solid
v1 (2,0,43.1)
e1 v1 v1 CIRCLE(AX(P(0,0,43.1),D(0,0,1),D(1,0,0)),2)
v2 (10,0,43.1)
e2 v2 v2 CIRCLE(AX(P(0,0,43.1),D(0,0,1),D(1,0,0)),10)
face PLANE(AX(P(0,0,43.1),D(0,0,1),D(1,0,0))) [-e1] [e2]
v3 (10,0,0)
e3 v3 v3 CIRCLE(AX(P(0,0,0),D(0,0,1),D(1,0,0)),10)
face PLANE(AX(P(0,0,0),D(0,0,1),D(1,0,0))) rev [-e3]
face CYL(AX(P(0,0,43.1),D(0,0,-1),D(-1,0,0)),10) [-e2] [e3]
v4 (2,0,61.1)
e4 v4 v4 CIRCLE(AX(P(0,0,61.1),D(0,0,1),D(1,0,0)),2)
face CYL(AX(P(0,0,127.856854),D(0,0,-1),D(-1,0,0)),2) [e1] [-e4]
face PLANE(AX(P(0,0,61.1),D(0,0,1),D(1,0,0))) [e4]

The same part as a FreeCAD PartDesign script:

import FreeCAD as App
import Part
import Sketcher
from FreeCAD import Vector

doc = App.newDocument("Part")
body = doc.addObject("PartDesign::Body", "Body")

# Sketch on XY plane
sketch1 = body.newObject("Sketcher::SketchObject", "Sketch")
sketch1.AttachmentSupport = (doc.getObject("XY_Plane"), [""])
sketch1.MapMode = "FlatFace"
sketch1.addGeometry(Part.Circle(Vector(0, 0, 0), Vector(0, 0, 1), 10), False)
sketch1.addConstraint([
    Sketcher.Constraint("Coincident", 0, 3, -1, 1),
    Sketcher.Constraint("Diameter", 0, 20.0),
])
pad1 = body.newObject("PartDesign::Pad", "Pad")
pad1.Profile = sketch1
pad1.Length = 43.1

# Sketch on XY plane
sketch2 = body.newObject("Sketcher::SketchObject", "Sketch001")
sketch2.AttachmentSupport = (doc.getObject("XY_Plane"), [""])
sketch2.MapMode = "FlatFace"
sketch2.AttachmentOffset = App.Placement(Vector(0, 0, 43.1), App.Rotation())
sketch2.addGeometry(Part.Circle(Vector(0, 0, 0), Vector(0, 0, 1), 2), False)
sketch2.addConstraint([
    Sketcher.Constraint("Coincident", 0, 3, -1, 1),
    Sketcher.Constraint("Diameter", 0, 4.0),
])
pad2 = body.newObject("PartDesign::Pad", "Pad001")
pad2.Profile = sketch2
pad2.Length = 18

doc.recompute()
